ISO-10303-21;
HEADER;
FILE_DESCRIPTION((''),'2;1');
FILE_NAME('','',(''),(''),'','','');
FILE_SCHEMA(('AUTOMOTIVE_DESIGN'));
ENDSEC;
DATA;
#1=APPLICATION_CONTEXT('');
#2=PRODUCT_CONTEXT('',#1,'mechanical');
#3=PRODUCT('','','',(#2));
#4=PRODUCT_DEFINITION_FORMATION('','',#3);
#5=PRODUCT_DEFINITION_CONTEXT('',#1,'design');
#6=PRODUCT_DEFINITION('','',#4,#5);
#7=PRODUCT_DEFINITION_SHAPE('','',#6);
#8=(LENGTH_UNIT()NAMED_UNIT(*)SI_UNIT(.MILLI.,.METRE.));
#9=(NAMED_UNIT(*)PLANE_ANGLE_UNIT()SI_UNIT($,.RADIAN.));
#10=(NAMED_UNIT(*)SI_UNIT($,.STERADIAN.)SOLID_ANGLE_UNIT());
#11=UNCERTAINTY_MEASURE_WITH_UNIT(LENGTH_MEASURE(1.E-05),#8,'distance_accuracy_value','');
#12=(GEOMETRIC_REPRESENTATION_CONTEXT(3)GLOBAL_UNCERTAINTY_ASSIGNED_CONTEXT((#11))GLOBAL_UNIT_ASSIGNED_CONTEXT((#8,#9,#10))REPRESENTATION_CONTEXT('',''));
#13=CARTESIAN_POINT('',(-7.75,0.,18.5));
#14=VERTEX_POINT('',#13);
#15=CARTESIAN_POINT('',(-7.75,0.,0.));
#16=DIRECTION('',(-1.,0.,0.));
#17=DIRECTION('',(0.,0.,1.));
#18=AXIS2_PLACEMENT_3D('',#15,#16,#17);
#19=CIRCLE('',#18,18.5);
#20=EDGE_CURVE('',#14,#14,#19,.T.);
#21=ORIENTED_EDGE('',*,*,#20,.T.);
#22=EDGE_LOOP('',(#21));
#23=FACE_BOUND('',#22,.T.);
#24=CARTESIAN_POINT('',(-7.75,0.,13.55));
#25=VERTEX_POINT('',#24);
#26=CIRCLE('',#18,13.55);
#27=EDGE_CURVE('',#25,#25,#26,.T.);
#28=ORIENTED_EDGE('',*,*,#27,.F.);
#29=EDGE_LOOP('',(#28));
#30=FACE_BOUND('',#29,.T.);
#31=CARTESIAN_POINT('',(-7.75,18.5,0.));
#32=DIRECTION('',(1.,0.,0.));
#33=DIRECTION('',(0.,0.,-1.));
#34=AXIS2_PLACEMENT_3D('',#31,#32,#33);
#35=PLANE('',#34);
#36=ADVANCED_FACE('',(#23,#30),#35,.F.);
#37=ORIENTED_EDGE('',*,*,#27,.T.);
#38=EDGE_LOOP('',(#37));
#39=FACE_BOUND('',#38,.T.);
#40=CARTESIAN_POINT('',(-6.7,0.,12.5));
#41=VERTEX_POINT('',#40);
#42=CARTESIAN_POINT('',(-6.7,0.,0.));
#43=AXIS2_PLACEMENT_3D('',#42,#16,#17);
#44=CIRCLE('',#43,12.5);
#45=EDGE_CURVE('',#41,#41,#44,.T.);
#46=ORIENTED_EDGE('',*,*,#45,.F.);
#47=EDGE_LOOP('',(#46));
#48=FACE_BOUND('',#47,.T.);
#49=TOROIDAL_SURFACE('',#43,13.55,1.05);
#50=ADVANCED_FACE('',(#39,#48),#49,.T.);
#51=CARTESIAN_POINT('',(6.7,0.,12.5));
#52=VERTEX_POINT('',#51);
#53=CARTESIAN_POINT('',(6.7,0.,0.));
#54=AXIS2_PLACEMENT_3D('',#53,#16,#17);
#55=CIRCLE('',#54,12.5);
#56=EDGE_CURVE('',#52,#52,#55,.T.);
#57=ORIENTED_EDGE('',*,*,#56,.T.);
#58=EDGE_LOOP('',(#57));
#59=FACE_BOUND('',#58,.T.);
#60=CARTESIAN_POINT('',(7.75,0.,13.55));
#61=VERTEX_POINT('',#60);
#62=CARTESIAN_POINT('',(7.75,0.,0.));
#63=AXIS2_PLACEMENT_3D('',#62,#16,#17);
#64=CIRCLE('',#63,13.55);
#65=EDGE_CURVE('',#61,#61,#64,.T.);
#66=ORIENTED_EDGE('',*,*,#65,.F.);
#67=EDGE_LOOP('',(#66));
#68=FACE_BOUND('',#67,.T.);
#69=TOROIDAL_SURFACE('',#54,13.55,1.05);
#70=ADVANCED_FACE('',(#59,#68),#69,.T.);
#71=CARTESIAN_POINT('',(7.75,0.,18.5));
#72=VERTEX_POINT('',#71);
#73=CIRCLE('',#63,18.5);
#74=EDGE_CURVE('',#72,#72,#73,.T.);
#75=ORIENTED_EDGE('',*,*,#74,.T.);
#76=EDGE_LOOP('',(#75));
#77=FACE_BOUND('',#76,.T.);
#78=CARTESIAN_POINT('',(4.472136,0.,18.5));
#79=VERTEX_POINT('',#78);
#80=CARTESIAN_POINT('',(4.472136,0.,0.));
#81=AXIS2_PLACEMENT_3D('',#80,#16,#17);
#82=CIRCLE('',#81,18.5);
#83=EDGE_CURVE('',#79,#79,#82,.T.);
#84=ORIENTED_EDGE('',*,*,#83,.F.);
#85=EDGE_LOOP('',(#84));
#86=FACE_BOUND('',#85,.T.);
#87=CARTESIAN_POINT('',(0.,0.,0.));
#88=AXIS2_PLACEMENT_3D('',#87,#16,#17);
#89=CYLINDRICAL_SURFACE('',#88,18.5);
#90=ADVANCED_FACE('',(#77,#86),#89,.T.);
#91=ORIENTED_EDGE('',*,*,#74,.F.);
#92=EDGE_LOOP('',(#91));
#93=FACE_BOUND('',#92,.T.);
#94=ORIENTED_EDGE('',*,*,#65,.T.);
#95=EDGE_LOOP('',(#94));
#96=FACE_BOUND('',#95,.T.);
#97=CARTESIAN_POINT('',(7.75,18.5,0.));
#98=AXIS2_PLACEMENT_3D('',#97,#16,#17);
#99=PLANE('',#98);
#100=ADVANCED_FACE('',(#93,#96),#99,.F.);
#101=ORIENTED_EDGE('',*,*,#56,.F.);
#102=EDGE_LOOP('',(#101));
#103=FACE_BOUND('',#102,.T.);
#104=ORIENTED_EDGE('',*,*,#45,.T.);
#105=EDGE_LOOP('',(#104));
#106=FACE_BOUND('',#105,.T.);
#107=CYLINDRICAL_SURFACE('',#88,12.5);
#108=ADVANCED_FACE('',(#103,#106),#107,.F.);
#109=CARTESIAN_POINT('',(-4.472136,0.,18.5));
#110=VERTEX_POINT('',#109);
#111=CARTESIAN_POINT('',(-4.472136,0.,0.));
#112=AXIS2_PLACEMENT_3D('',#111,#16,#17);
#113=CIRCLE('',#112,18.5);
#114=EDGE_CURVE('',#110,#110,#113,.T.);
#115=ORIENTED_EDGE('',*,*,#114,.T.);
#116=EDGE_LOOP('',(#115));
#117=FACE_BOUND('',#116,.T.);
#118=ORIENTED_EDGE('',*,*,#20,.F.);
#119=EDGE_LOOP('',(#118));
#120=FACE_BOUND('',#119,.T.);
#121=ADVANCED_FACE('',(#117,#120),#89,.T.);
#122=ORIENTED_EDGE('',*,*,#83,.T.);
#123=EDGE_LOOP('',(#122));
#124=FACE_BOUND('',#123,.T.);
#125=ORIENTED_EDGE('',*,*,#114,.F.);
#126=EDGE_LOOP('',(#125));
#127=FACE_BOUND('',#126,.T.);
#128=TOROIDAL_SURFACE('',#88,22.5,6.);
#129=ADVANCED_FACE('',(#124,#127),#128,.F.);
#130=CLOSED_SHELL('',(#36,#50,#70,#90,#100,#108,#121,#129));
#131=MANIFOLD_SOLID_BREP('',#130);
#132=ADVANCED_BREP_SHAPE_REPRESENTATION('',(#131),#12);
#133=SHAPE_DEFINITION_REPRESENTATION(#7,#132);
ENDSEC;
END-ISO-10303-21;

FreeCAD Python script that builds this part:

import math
import FreeCAD as App
import Part
import Sketcher
Q = App.Units.Quantity

doc = App.newDocument("Part")
body = doc.addObject("PartDesign::Body", "Body")

# Sketch on XY plane
sketch1 = body.newObject("Sketcher::SketchObject", "Sketch")
sketch1.AttachmentSupport = (doc.getObject("XY_Plane"), [""])
sketch1.MapMode = "FlatFace"
sketch1.addGeometry(Part.LineSegment(App.Vector(7.8, 18.5, 0), App.Vector(4.5, 18.5, 0)), False)
sketch1.addGeometry(Part.ArcOfCircle(Part.Circle(App.Vector(0, 22.5, 0), App.Vector(0, 0, 1), 6), math.radians(-138), math.radians(-42)), False)
sketch1.addGeometry(Part.LineSegment(App.Vector(-4.5, 18.5, 0), App.Vector(-7.8, 18.5, 0)), False)
sketch1.addGeometry(Part.LineSegment(App.Vector(-7.8, 18.5, 0), App.Vector(-7.8, 13.6, 0)), False)
sketch1.addGeometry(Part.ArcOfCircle(Part.Circle(App.Vector(-6.7, 13.6, 0), App.Vector(0, 0, 1), 1.1), math.radians(-180), math.radians(-90)), False)
sketch1.addGeometry(Part.LineSegment(App.Vector(-6.7, 12.5, 0), App.Vector(6.7, 12.5, 0)), False)
sketch1.addGeometry(Part.ArcOfCircle(Part.Circle(App.Vector(6.7, 13.6, 0), App.Vector(0, 0, 1), 1.1), math.radians(-90), math.radians(0)), False)
sketch1.addGeometry(Part.LineSegment(App.Vector(7.8, 13.6, 0), App.Vector(7.8, 18.5, 0)), False)
sketch1.addConstraint(Sketcher.Constraint("Coincident", 0, 2, 1, 2))
sketch1.addConstraint(Sketcher.Constraint("Coincident", 1, 1, 2, 1))
sketch1.addConstraint(Sketcher.Constraint("Coincident", 2, 2, 3, 1))
sketch1.addConstraint(Sketcher.Constraint("Tangent", 3, 2, 4, 1))
sketch1.addConstraint(Sketcher.Constraint("Tangent", 4, 2, 5, 1))
sketch1.addConstraint(Sketcher.Constraint("Tangent", 5, 2, 6, 1))
sketch1.addConstraint(Sketcher.Constraint("Tangent", 6, 2, 7, 1))
sketch1.addConstraint(Sketcher.Constraint("Coincident", 7, 2, 0, 1))
sketch1.addConstraint(Sketcher.Constraint("Horizontal", 0))
sketch1.addConstraint(Sketcher.Constraint("Horizontal", 2))
sketch1.addConstraint(Sketcher.Constraint("Vertical", 3))
sketch1.addConstraint(Sketcher.Constraint("Horizontal", 5))
sketch1.addConstraint(Sketcher.Constraint("Vertical", 7))
sketch1.addConstraint(Sketcher.Constraint("Equal", 4, 6))
sketch1.addConstraint(Sketcher.Constraint("Symmetric", 0, 2, 1, 1, -2))
sketch1.addConstraint(Sketcher.Constraint("Equal", 0, 2))
sketch1.addConstraint(Sketcher.Constraint("Radius", 1, Q("6 mm")))
sketch1.addConstraint(Sketcher.Constraint("Radius", 4, Q("1.05 mm")))
sketch1.addConstraint(Sketcher.Constraint("DistanceX", 5, 1, 5, 2, Q("13.4 mm")))
sketch1.addConstraint(Sketcher.Constraint("DistanceY", 0, 2, 1, 3, Q("4 mm")))
sketch1.addConstraint(Sketcher.Constraint("DistanceY", 4, 2, 2, 2, Q("6 mm")))
sketch1.addConstraint(Sketcher.Constraint("DistanceY", -1, 1, 1, 3, Q("22.5 mm")))
revolution = body.newObject("PartDesign::Revolution", "Revolution")
revolution.Profile = sketch1
revolution.ReferenceAxis = (sketch1, ["H_Axis"])
revolution.Angle = 360

doc.recompute()
